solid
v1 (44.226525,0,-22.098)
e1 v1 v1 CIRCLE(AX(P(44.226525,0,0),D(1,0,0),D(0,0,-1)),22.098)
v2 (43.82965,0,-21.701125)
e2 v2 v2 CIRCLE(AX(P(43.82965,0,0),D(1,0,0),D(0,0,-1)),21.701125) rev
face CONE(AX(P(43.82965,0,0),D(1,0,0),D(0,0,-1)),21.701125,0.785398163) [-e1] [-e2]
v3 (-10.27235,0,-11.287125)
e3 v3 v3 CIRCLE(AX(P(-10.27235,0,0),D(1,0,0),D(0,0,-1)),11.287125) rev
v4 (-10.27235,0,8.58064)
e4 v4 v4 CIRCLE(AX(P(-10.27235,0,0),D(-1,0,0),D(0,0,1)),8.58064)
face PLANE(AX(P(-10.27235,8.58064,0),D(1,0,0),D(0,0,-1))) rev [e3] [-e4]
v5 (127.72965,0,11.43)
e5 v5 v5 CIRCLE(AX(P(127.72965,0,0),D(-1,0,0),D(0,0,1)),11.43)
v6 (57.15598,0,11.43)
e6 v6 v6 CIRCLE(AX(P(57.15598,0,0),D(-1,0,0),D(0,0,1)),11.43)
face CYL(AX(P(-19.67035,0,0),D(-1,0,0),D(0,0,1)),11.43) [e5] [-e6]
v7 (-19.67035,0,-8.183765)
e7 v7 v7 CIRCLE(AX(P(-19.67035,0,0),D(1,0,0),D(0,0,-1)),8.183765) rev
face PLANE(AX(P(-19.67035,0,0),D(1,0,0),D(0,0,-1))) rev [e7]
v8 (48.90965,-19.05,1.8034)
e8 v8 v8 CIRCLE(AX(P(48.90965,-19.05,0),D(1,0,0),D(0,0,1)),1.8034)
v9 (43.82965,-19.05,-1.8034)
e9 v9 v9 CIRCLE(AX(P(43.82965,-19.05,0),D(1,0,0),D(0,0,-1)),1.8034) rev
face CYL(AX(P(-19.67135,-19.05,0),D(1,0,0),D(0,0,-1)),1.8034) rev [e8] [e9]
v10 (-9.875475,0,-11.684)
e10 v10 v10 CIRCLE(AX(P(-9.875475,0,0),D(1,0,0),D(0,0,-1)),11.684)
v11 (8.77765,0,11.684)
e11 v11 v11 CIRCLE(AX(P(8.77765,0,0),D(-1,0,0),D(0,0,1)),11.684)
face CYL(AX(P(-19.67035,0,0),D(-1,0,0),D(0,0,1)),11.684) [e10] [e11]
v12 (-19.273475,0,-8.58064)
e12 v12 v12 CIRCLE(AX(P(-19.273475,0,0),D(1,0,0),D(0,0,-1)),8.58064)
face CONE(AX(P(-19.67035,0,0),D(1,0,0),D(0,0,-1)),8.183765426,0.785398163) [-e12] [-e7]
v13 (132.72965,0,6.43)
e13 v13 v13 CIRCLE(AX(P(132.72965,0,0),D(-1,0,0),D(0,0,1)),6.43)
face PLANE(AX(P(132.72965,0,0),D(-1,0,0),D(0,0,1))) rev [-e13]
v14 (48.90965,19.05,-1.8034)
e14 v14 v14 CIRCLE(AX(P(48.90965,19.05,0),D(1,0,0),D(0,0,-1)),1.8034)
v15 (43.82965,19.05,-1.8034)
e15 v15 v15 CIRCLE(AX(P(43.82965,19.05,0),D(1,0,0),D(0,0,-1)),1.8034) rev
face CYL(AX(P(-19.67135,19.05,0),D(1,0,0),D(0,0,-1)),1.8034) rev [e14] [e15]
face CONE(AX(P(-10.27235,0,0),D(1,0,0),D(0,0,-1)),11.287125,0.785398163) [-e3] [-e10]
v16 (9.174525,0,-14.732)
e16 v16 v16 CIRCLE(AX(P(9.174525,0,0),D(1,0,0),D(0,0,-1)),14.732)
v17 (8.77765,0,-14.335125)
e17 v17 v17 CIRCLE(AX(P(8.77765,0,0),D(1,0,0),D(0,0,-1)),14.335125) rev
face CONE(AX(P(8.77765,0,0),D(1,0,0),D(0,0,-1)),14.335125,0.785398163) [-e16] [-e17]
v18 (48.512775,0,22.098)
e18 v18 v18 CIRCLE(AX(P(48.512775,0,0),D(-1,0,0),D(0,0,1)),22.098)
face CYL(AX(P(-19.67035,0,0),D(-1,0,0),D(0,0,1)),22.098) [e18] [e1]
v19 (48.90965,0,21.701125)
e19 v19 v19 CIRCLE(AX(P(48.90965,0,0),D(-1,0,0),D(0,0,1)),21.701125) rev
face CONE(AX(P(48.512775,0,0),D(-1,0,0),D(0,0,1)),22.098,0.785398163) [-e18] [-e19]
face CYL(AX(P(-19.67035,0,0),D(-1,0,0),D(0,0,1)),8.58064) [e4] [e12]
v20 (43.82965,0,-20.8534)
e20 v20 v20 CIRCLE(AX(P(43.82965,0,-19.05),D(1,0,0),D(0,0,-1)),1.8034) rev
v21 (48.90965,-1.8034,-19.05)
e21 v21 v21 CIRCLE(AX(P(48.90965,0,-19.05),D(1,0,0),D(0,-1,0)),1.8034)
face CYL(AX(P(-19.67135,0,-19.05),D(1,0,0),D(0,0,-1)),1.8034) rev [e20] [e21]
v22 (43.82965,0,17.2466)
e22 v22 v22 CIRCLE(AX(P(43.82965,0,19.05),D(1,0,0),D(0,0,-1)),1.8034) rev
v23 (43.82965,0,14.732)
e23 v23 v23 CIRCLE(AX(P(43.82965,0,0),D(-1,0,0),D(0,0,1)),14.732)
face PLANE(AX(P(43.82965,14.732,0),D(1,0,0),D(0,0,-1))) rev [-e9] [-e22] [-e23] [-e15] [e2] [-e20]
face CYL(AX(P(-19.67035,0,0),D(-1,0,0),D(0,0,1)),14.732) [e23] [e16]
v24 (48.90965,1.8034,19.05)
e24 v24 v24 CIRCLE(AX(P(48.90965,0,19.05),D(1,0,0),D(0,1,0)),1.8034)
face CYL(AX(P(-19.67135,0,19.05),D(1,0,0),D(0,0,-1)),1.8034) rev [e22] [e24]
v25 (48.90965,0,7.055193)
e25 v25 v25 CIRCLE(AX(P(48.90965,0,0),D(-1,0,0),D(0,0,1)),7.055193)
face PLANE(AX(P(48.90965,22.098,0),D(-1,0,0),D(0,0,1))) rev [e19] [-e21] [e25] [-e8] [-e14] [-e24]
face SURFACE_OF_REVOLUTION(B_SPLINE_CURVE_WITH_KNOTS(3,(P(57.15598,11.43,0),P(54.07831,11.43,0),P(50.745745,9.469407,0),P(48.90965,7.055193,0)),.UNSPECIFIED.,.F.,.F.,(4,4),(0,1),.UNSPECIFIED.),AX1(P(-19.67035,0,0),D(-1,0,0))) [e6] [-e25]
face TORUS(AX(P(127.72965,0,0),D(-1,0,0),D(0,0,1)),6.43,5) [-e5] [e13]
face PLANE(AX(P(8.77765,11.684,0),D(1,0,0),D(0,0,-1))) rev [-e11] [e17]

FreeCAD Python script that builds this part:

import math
import FreeCAD as App
import Part
import Sketcher
Q = App.Units.Quantity


def edges_at(feature, points):
    """Names of the edges that pass closest to the given points."""
    edges = feature.Shape.Edges
    near = lambda p: min(range(len(edges)), key=lambda i: edges[i].distToShape(Part.Vertex(*p))[0])
    return sorted({f"Edge{near(p) + 1}" for p in points})

doc = App.newDocument("Part")
params = doc.addObject("Spreadsheet::Sheet", "Params")
for row, (alias, value) in enumerate([
    ("sketch1_width", "6 in"),
    ("sketch1_width2", "0.2 in"),
    ("sketch1_width3", "1.38 in"),
    ("sketch1_width4", "0.75 in"),
    ("sketch1_width5", "0.37 in"),
    ("revolution_angle", "360 deg"),
    ("sketch2_diameter", "0.142 in"),
    ("pocket1_length", "0.2 in"),
    ("chamfer_size", "0.015625 in"),
], start=1):
    params.set(f"A{row}", alias)
    params.set(f"B{row}", "=" + value)
    params.setAlias(f"B{row}", alias)

body = doc.addObject("PartDesign::Body", "Body")

sketch1 = doc.addObject("Sketcher::SketchObject", "Sketch")
body.addObject(sketch1)
sketch1.AttachmentSupport = (doc.XY_Plane, [""])
sketch1.MapMode = "FlatFace"
sketch1.addGeometry(Part.LineSegment(App.Vector(-19.67035, 8.58064, 0), App.Vector(-19.67035, 0, 0)), False)
sketch1.addGeometry(Part.LineSegment(App.Vector(-19.67035, 0, 0), App.Vector(132.72965, 0, 0)), False)
sketch1.addGeometry(Part.LineSegment(App.Vector(132.72965, 0, 0), App.Vector(132.72965, 6.43, 0)), False)
sketch1.addGeometry(Part.ArcOfCircle(Part.Circle(App.Vector(127.72965, 6.43, 0), App.Vector(0, 0, 1), 5), math.radians(0), math.radians(90)), False)
sketch1.addGeometry(Part.LineSegment(App.Vector(127.72965, 11.43, 0), App.Vector(57.15598, 11.43, 0)), False)
sketch1.addGeometry(Part.BSplineCurve([App.Vector(48.90965, 7.055193, 0), App.Vector(50.745745, 9.469407, 0), App.Vector(54.07831, 11.43, 0), App.Vector(57.15598, 11.43, 0)], [4, 4], [0, 1], False, 3, [1, 1, 1, 1], False), False)
sketch1.addGeometry(Part.LineSegment(App.Vector(48.90965, 7.055193, 0), App.Vector(48.90965, 22.098, 0)), False)
sketch1.addGeometry(Part.LineSegment(App.Vector(48.90965, 22.098, 0), App.Vector(43.82965, 22.098, 0)), False)
sketch1.addGeometry(Part.LineSegment(App.Vector(43.82965, 22.098, 0), App.Vector(43.82965, 14.732, 0)), False)
sketch1.addGeometry(Part.LineSegment(App.Vector(43.82965, 14.732, 0), App.Vector(8.77765, 14.732, 0)), False)
sketch1.addGeometry(Part.LineSegment(App.Vector(8.77765, 14.732, 0), App.Vector(8.77765, 11.684, 0)), False)
sketch1.addGeometry(Part.LineSegment(App.Vector(8.77765, 11.684, 0), App.Vector(-10.27235, 11.684, 0)), False)
sketch1.addGeometry(Part.LineSegment(App.Vector(-10.27235, 11.684, 0), App.Vector(-10.27235, 8.58064, 0)), False)
sketch1.addGeometry(Part.LineSegment(App.Vector(-10.27235, 8.58064, 0), App.Vector(-19.67035, 8.58064, 0)), False)
sketch1.addConstraint(Sketcher.Constraint("Block", 5))
sketch1.addConstraint(Sketcher.Constraint("Coincident", 0, 2, 1, 1))
sketch1.addConstraint(Sketcher.Constraint("Coincident", 1, 2, 2, 1))
sketch1.addConstraint(Sketcher.Constraint("Tangent", 2, 2, 3, 1))
sketch1.addConstraint(Sketcher.Constraint("Tangent", 3, 2, 4, 1))
sketch1.addConstraint(Sketcher.Constraint("Coincident", 4, 2, 5, 2))
sketch1.addConstraint(Sketcher.Constraint("Coincident", 5, 1, 6, 1))
sketch1.addConstraint(Sketcher.Constraint("Coincident", 6, 2, 7, 1))
sketch1.addConstraint(Sketcher.Constraint("Coincident", 7, 2, 8, 1))
sketch1.addConstraint(Sketcher.Constraint("Coincident", 8, 2, 9, 1))
sketch1.addConstraint(Sketcher.Constraint("Coincident", 9, 2, 10, 1))
sketch1.addConstraint(Sketcher.Constraint("Coincident", 10, 2, 11, 1))
sketch1.addConstraint(Sketcher.Constraint("Coincident", 11, 2, 12, 1))
sketch1.addConstraint(Sketcher.Constraint("Coincident", 12, 2, 13, 1))
sketch1.addConstraint(Sketcher.Constraint("Coincident", 13, 2, 0, 1))
sketch1.addConstraint(Sketcher.Constraint("Vertical", 0))
sketch1.addConstraint(Sketcher.Constraint("Horizontal", 1))
sketch1.addConstraint(Sketcher.Constraint("Vertical", 2))
sketch1.addConstraint(Sketcher.Constraint("Horizontal", 4))
sketch1.addConstraint(Sketcher.Constraint("Vertical", 6))
sketch1.addConstraint(Sketcher.Constraint("Horizontal", 7))
sketch1.addConstraint(Sketcher.Constraint("Vertical", 8))
sketch1.addConstraint(Sketcher.Constraint("Horizontal", 9))
sketch1.addConstraint(Sketcher.Constraint("Vertical", 10))
sketch1.addConstraint(Sketcher.Constraint("Horizontal", 11))
sketch1.addConstraint(Sketcher.Constraint("Vertical", 12))
sketch1.addConstraint(Sketcher.Constraint("Horizontal", 13))
sketch1.addConstraint(Sketcher.Constraint("PointOnObject", 0, 2, -1))
sketch1.addConstraint(Sketcher.Constraint("DistanceX", 1, 1, 1, 2, Q("6 in")))
sketch1.addConstraint(Sketcher.Constraint("DistanceX", 7, 2, 7, 1, Q("0.2 in")))
sketch1.addConstraint(Sketcher.Constraint("DistanceX", 9, 2, 9, 1, Q("1.38 in")))
sketch1.addConstraint(Sketcher.Constraint("DistanceX", 11, 2, 11, 1, Q("0.75 in")))
sketch1.addConstraint(Sketcher.Constraint("DistanceX", 13, 2, 13, 1, Q("0.37 in")))
sketch1.addConstraint(Sketcher.Constraint("DistanceY", 8, 2, 8, 1, Q("0.29 in")))
sketch1.addConstraint(Sketcher.Constraint("DistanceY", 10, 2, 10, 1, Q("0.12 in")))
sketch1.addConstraint(Sketcher.Constraint("DistanceY", -1, 1, 6, 2, Q("0.87 in")))
sketch1.addConstraint(Sketcher.Constraint("Radius", 3, Q("5 mm")))
sketch1.addConstraint(Sketcher.Constraint("DistanceY", 0, 2, 0, 1, Q("8.58064 mm")))
sketch1.setExpression("Constraints[28]", "Params.sketch1_width")
sketch1.setExpression("Constraints[29]", "Params.sketch1_width2")
sketch1.setExpression("Constraints[30]", "Params.sketch1_width3")
sketch1.setExpression("Constraints[31]", "Params.sketch1_width4")
sketch1.setExpression("Constraints[32]", "Params.sketch1_width5")
revolution = doc.addObject("PartDesign::Revolution", "Revolution")
body.addObject(revolution)
revolution.Profile = sketch1
revolution.ReferenceAxis = (sketch1, ["H_Axis"])
revolution.setExpression("Angle", "Params.revolution_angle")

sketch2 = doc.addObject("Sketcher::SketchObject", "Sketch001")
body.addObject(sketch2)
sketch2.AttachmentSupport = (doc.YZ_Plane, [""])
sketch2.MapMode = "FlatFace"
sketch2.AttachmentOffset = App.Placement(App.Vector(0, 0, 48.90965), App.Rotation())
sketch2.addGeometry(Part.Circle(App.Vector(19.1, 0, 0), App.Vector(0, 0, 1), 1.8), False)
sketch2.addConstraint(Sketcher.Constraint("PointOnObject", 0, 3, -1))
sketch2.addConstraint(Sketcher.Constraint("Diameter", 0, Q("0.142 in")))
sketch2.addConstraint(Sketcher.Constraint("DistanceX", -1, 1, 0, 3, Q("0.75 in")))
sketch2.setExpression("Constraints[1]", "Params.sketch2_diameter")
pocket1 = doc.addObject("PartDesign::Pocket", "Pocket")
body.addObject(pocket1)
pocket1.Profile = sketch2
pocket1.setExpression("Length", "Params.pocket1_length")
doc.recompute()

polarpattern = doc.addObject("PartDesign::PolarPattern", "PolarPattern")
body.addObject(polarpattern)
polarpattern.Originals = [pocket1]
polarpattern.Axis = (doc.X_Axis, [""])
polarpattern.Angle = 360
polarpattern.Occurrences = 4
body.Tip = polarpattern
doc.recompute()

chamfer = doc.addObject("PartDesign::Chamfer", "Chamfer")
body.addObject(chamfer)
chamfer.Base = (polarpattern, edges_at(polarpattern, [
    (48.91, -22.098, 0),
    (43.83, -22.098, 0),
    (8.778, -14.732, 0),
    (-10.272, -11.684, 0),
    (-19.67, -8.581, 0),
]))
chamfer.setExpression("Size", "Params.chamfer_size")

doc.recompute()
